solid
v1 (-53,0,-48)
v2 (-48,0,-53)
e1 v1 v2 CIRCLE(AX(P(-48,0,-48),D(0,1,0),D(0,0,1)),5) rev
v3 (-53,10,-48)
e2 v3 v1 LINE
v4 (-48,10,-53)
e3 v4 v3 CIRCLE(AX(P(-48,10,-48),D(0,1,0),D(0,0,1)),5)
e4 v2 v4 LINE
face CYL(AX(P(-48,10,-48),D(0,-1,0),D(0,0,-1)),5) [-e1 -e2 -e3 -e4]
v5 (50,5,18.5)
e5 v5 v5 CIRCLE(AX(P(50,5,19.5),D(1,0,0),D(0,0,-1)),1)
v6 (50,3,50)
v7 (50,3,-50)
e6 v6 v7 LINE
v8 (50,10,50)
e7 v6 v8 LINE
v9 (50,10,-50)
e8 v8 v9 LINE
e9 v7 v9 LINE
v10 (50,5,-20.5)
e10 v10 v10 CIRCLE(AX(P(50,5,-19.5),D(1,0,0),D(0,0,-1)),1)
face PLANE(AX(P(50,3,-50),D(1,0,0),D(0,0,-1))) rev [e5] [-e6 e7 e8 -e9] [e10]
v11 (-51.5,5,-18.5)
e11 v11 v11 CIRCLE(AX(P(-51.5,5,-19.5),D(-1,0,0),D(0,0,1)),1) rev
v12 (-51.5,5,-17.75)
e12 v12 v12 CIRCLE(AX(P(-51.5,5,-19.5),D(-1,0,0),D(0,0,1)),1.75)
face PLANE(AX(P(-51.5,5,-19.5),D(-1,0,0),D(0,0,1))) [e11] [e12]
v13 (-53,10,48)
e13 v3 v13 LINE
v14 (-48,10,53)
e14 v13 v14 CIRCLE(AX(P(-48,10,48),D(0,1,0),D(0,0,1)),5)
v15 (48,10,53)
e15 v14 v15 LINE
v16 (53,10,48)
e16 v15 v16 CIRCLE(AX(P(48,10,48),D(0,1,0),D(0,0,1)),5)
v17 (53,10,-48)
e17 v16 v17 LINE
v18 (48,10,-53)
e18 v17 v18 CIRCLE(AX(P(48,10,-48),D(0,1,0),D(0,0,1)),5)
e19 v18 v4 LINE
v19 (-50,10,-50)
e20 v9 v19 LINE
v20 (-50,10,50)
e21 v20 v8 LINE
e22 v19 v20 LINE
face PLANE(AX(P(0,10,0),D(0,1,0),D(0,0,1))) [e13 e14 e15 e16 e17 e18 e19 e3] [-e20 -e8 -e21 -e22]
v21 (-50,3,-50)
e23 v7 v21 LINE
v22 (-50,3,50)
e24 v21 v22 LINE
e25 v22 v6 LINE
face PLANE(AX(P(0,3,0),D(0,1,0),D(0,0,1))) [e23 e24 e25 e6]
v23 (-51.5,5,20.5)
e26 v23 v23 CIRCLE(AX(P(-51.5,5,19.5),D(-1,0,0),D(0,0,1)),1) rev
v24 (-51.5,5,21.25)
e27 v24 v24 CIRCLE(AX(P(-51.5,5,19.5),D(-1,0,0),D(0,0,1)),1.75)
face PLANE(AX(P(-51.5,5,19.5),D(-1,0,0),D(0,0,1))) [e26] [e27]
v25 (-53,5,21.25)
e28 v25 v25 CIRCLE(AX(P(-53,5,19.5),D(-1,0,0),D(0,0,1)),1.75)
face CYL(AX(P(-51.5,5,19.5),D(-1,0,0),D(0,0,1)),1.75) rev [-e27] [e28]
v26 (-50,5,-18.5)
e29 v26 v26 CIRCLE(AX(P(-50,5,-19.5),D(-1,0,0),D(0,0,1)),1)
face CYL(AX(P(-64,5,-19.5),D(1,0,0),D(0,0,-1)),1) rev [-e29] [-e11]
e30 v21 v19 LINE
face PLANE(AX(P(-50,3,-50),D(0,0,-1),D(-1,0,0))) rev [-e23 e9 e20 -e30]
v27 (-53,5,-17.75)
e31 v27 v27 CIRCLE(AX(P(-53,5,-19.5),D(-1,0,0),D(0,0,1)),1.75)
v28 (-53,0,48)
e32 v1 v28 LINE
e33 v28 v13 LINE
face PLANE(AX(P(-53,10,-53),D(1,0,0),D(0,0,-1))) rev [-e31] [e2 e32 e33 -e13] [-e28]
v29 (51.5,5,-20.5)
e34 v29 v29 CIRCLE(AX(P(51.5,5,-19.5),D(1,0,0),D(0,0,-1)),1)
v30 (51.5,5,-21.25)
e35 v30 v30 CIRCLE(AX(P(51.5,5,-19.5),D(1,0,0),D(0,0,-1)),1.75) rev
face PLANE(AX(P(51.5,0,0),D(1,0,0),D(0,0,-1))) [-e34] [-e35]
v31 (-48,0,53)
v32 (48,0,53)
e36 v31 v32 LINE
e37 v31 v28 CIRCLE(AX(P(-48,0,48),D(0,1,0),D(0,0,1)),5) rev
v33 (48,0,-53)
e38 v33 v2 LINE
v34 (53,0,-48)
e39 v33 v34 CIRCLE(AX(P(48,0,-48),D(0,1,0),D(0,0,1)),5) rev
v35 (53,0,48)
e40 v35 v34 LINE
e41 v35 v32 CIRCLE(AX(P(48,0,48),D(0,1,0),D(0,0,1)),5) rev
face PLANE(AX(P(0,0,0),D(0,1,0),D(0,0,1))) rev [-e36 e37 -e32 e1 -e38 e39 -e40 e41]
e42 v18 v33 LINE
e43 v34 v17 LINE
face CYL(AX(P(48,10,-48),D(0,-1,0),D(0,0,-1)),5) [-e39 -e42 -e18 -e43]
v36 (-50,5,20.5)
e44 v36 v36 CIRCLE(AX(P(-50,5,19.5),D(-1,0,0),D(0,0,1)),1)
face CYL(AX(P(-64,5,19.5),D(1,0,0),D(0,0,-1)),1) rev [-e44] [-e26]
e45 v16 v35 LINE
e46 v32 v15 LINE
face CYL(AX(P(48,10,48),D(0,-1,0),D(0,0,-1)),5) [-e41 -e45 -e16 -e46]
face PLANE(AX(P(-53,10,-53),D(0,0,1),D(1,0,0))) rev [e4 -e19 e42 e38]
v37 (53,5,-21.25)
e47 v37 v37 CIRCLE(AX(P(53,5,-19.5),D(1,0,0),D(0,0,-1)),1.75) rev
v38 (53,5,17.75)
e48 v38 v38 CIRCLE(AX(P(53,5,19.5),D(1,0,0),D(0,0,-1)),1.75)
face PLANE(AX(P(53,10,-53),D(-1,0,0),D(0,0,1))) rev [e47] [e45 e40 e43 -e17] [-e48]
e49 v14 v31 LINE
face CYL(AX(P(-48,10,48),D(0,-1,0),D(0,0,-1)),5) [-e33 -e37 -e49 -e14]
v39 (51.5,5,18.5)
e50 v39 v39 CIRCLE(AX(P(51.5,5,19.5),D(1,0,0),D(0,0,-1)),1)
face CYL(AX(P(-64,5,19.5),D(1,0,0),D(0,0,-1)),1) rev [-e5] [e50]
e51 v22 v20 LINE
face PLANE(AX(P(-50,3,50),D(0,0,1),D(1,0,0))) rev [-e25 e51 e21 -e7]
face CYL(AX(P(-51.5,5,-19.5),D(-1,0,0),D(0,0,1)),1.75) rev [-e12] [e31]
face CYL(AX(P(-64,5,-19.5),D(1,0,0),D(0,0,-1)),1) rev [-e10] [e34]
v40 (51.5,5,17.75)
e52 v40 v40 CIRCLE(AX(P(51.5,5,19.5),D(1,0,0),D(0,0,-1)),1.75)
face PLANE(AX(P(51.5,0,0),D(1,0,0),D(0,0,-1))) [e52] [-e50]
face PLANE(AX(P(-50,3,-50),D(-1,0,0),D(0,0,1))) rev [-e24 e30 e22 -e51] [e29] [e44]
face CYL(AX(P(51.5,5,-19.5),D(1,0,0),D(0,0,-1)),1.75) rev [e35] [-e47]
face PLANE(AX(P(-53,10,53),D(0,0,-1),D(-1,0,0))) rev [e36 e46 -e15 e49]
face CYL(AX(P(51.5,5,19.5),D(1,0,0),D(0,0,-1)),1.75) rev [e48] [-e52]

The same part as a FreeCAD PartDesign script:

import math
import FreeCAD as App
import Part
import Sketcher


def edges_at(feature, points):
    """Names of the edges that pass closest to the given points."""
    edges = feature.Shape.Edges
    near = lambda p: min(range(len(edges)), key=lambda i: edges[i].distToShape(Part.Vertex(*p))[0])
    return sorted({f"Edge{near(p) + 1}" for p in points})

doc = App.newDocument("Part")
body = doc.addObject("PartDesign::Body", "Body")

# Sketch on XZ plane
sketch1 = body.newObject("Sketcher::SketchObject", "Sketch")
sketch1.AttachmentSupport = (doc.getObject("XZ_Plane"), [""])
sketch1.MapMode = "FlatFace"
sketch1.addGeometry([
    Part.LineSegment(App.Vector(-53, -53, 0), App.Vector(-53, 53, 0)),
    Part.LineSegment(App.Vector(-53, 53, 0), App.Vector(53, 53, 0)),
    Part.LineSegment(App.Vector(53, 53, 0), App.Vector(53, -53, 0)),
    Part.LineSegment(App.Vector(53, -53, 0), App.Vector(-53, -53, 0)),
], False)
sketch1.addConstraint([
    Sketcher.Constraint("Coincident", 0, 2, 1, 1),
    Sketcher.Constraint("Coincident", 1, 2, 2, 1),
    Sketcher.Constraint("Coincident", 2, 2, 3, 1),
    Sketcher.Constraint("Coincident", 3, 2, 0, 1),
    Sketcher.Constraint("Vertical", 0),
    Sketcher.Constraint("Horizontal", 1),
    Sketcher.Constraint("Vertical", 2),
    Sketcher.Constraint("Horizontal", 3),
    Sketcher.Constraint("Symmetric", 0, 2, 2, 2, -1, 1),
    Sketcher.Constraint("Equal", 3, 0),
    Sketcher.Constraint("DistanceX", 1, 1, 1, 2, 106.0),
])
pad1 = body.newObject("PartDesign::Pad", "Pad")
pad1.Profile = sketch1
pad1.Length = 10
pad1.Reversed = True

# Sketch on XZ plane
sketch2 = body.newObject("Sketcher::SketchObject", "Sketch001")
sketch2.AttachmentSupport = (doc.getObject("XZ_Plane"), [""])
sketch2.MapMode = "FlatFace"
sketch2.AttachmentOffset = App.Placement(App.Vector(0, 0, -10), App.Rotation())
sketch2.addGeometry([
    Part.LineSegment(App.Vector(-50, -50, 0), App.Vector(-50, 50, 0)),
    Part.LineSegment(App.Vector(-50, 50, 0), App.Vector(50, 50, 0)),
    Part.LineSegment(App.Vector(50, 50, 0), App.Vector(50, -50, 0)),
    Part.LineSegment(App.Vector(50, -50, 0), App.Vector(-50, -50, 0)),
], False)
sketch2.addConstraint([
    Sketcher.Constraint("Coincident", 0, 2, 1, 1),
    Sketcher.Constraint("Coincident", 1, 2, 2, 1),
    Sketcher.Constraint("Coincident", 2, 2, 3, 1),
    Sketcher.Constraint("Coincident", 3, 2, 0, 1),
    Sketcher.Constraint("Vertical", 0),
    Sketcher.Constraint("Horizontal", 1),
    Sketcher.Constraint("Vertical", 2),
    Sketcher.Constraint("Horizontal", 3),
    Sketcher.Constraint("Symmetric", 0, 2, 2, 2, -1, 1),
    Sketcher.Constraint("Equal", 3, 0),
    Sketcher.Constraint("DistanceX", 1, 1, 1, 2, 100.0),
])
pocket1 = body.newObject("PartDesign::Pocket", "Pocket")
pocket1.Profile = sketch2
pocket1.Length = 7
pocket1.Reversed = True

# Sketch on YZ plane
sketch3 = body.newObject("Sketcher::SketchObject", "Sketch002")
sketch3.AttachmentSupport = (doc.getObject("YZ_Plane"), [""])
sketch3.MapMode = "FlatFace"
sketch3.AttachmentOffset = App.Placement(App.Vector(0, 0, 53), App.Rotation())
sketch3.addGeometry([
    Part.ArcOfCircle(Part.Circle(App.Vector(5, 19.5, 0), App.Vector(0, 0, 1), 1.8), math.radians(-90), math.radians(0)),  # 0
    Part.ArcOfCircle(Part.Circle(App.Vector(5, 19.5, 0), App.Vector(0, 0, 1), 1.8), math.radians(0), math.radians(180)),  # 1
    Part.ArcOfCircle(Part.Circle(App.Vector(5, 19.5, 0), App.Vector(0, 0, 1), 1.8), math.radians(180), math.radians(270)),  # 2
    Part.ArcOfCircle(Part.Circle(App.Vector(5, -19.5, 0), App.Vector(0, 0, 1), 1.8), math.radians(-90), math.radians(0)),  # 3
    Part.ArcOfCircle(Part.Circle(App.Vector(5, -19.5, 0), App.Vector(0, 0, 1), 1.8), math.radians(0), math.radians(180)),  # 4
    Part.ArcOfCircle(Part.Circle(App.Vector(5, -19.5, 0), App.Vector(0, 0, 1), 1.8), math.radians(180), math.radians(270)),  # 5
], False)
sketch3.addConstraint([
    Sketcher.Constraint("Tangent", 0, 2, 1, 1),
    Sketcher.Constraint("Tangent", 1, 2, 2, 1),
    Sketcher.Constraint("Tangent", 2, 2, 0, 1),
    Sketcher.Constraint("Tangent", 3, 2, 4, 1),
    Sketcher.Constraint("Tangent", 4, 2, 5, 1),
    Sketcher.Constraint("Tangent", 5, 2, 3, 1),
    Sketcher.Constraint("Equal", 2, 3),
    Sketcher.Constraint("Symmetric", 0, 3, 3, 3, -1),
    Sketcher.Constraint("Horizontal", 2, 3, 0, 2),
    Sketcher.Constraint("Horizontal", 0, 2, 1, 2),
    Sketcher.Constraint("Horizontal", 5, 3, 3, 2),
    Sketcher.Constraint("Horizontal", 3, 2, 4, 2),
    Sketcher.Constraint("Vertical", 5, 3, 2, 2),
    Sketcher.Constraint("Vertical", 2, 2, 5, 2),
    Sketcher.Constraint("Radius", 0, 1.75),
    Sketcher.Constraint("DistanceX", -1, 1, 0, 3, 5.0),
    Sketcher.Constraint("DistanceY", 3, 3, 0, 3, 39.0),
])
pocket2 = body.newObject("PartDesign::Pocket", "Pocket001")
pocket2.Profile = sketch3
pocket2.Length = 1.5

# Sketch on YZ plane
sketch4 = body.newObject("Sketcher::SketchObject", "Sketch003")
sketch4.AttachmentSupport = (doc.getObject("YZ_Plane"), [""])
sketch4.MapMode = "FlatFace"
sketch4.AttachmentOffset = App.Placement(App.Vector(0, 0, 51.5), App.Rotation())
sketch4.addGeometry([
    Part.Circle(App.Vector(5, 19.5, 0), App.Vector(0, 0, 1), 1),
    Part.Circle(App.Vector(5, -19.5, 0), App.Vector(0, 0, 1), 1),
], False)
sketch4.addConstraint([
    Sketcher.Constraint("Equal", 0, 1),
    Sketcher.Constraint("Symmetric", 0, 3, 1, 3, -1),
    Sketcher.Constraint("Diameter", 0, 2.0),
    Sketcher.Constraint("DistanceX", -1, 1, 0, 3, 5.0),
    Sketcher.Constraint("DistanceY", 1, 3, 0, 3, 39.0),
])
pocket3 = body.newObject("PartDesign::Pocket", "Pocket002")
pocket3.Profile = sketch4
pocket3.Length = 115.5

# Sketch on YZ plane
sketch5 = body.newObject("Sketcher::SketchObject", "Sketch004")
sketch5.AttachmentSupport = (doc.getObject("YZ_Plane"), [""])
sketch5.MapMode = "FlatFace"
sketch5.AttachmentOffset = App.Placement(App.Vector(0, 0, -51.5), App.Rotation())
sketch5.addGeometry([
    Part.Circle(App.Vector(5, -19.5, 0), App.Vector(0, 0, 1), 1.8),
    Part.Circle(App.Vector(5, 19.5, 0), App.Vector(0, 0, 1), 1.8),
], False)
sketch5.addConstraint([
    Sketcher.Constraint("Equal", 0, 1),
    Sketcher.Constraint("Symmetric", 0, 3, 1, 3, -1),
    Sketcher.Constraint("Diameter", 0, 3.5),
    Sketcher.Constraint("DistanceX", -1, 1, 0, 3, 5.0),
    Sketcher.Constraint("DistanceY", 0, 3, 1, 3, 39.0),
])
pocket4 = body.newObject("PartDesign::Pocket", "Pocket003")
pocket4.Profile = sketch5
pocket4.Length = 1.5
doc.recompute()

fillet = body.newObject("PartDesign::Fillet", "Fillet")
fillet.Base = (pocket4, edges_at(pocket4, [
    (53, 5, 53),
    (-53, 5, 53),
    (-53, 5, -53),
    (53, 5, -53),
]))
fillet.Radius = 5

doc.recompute()
